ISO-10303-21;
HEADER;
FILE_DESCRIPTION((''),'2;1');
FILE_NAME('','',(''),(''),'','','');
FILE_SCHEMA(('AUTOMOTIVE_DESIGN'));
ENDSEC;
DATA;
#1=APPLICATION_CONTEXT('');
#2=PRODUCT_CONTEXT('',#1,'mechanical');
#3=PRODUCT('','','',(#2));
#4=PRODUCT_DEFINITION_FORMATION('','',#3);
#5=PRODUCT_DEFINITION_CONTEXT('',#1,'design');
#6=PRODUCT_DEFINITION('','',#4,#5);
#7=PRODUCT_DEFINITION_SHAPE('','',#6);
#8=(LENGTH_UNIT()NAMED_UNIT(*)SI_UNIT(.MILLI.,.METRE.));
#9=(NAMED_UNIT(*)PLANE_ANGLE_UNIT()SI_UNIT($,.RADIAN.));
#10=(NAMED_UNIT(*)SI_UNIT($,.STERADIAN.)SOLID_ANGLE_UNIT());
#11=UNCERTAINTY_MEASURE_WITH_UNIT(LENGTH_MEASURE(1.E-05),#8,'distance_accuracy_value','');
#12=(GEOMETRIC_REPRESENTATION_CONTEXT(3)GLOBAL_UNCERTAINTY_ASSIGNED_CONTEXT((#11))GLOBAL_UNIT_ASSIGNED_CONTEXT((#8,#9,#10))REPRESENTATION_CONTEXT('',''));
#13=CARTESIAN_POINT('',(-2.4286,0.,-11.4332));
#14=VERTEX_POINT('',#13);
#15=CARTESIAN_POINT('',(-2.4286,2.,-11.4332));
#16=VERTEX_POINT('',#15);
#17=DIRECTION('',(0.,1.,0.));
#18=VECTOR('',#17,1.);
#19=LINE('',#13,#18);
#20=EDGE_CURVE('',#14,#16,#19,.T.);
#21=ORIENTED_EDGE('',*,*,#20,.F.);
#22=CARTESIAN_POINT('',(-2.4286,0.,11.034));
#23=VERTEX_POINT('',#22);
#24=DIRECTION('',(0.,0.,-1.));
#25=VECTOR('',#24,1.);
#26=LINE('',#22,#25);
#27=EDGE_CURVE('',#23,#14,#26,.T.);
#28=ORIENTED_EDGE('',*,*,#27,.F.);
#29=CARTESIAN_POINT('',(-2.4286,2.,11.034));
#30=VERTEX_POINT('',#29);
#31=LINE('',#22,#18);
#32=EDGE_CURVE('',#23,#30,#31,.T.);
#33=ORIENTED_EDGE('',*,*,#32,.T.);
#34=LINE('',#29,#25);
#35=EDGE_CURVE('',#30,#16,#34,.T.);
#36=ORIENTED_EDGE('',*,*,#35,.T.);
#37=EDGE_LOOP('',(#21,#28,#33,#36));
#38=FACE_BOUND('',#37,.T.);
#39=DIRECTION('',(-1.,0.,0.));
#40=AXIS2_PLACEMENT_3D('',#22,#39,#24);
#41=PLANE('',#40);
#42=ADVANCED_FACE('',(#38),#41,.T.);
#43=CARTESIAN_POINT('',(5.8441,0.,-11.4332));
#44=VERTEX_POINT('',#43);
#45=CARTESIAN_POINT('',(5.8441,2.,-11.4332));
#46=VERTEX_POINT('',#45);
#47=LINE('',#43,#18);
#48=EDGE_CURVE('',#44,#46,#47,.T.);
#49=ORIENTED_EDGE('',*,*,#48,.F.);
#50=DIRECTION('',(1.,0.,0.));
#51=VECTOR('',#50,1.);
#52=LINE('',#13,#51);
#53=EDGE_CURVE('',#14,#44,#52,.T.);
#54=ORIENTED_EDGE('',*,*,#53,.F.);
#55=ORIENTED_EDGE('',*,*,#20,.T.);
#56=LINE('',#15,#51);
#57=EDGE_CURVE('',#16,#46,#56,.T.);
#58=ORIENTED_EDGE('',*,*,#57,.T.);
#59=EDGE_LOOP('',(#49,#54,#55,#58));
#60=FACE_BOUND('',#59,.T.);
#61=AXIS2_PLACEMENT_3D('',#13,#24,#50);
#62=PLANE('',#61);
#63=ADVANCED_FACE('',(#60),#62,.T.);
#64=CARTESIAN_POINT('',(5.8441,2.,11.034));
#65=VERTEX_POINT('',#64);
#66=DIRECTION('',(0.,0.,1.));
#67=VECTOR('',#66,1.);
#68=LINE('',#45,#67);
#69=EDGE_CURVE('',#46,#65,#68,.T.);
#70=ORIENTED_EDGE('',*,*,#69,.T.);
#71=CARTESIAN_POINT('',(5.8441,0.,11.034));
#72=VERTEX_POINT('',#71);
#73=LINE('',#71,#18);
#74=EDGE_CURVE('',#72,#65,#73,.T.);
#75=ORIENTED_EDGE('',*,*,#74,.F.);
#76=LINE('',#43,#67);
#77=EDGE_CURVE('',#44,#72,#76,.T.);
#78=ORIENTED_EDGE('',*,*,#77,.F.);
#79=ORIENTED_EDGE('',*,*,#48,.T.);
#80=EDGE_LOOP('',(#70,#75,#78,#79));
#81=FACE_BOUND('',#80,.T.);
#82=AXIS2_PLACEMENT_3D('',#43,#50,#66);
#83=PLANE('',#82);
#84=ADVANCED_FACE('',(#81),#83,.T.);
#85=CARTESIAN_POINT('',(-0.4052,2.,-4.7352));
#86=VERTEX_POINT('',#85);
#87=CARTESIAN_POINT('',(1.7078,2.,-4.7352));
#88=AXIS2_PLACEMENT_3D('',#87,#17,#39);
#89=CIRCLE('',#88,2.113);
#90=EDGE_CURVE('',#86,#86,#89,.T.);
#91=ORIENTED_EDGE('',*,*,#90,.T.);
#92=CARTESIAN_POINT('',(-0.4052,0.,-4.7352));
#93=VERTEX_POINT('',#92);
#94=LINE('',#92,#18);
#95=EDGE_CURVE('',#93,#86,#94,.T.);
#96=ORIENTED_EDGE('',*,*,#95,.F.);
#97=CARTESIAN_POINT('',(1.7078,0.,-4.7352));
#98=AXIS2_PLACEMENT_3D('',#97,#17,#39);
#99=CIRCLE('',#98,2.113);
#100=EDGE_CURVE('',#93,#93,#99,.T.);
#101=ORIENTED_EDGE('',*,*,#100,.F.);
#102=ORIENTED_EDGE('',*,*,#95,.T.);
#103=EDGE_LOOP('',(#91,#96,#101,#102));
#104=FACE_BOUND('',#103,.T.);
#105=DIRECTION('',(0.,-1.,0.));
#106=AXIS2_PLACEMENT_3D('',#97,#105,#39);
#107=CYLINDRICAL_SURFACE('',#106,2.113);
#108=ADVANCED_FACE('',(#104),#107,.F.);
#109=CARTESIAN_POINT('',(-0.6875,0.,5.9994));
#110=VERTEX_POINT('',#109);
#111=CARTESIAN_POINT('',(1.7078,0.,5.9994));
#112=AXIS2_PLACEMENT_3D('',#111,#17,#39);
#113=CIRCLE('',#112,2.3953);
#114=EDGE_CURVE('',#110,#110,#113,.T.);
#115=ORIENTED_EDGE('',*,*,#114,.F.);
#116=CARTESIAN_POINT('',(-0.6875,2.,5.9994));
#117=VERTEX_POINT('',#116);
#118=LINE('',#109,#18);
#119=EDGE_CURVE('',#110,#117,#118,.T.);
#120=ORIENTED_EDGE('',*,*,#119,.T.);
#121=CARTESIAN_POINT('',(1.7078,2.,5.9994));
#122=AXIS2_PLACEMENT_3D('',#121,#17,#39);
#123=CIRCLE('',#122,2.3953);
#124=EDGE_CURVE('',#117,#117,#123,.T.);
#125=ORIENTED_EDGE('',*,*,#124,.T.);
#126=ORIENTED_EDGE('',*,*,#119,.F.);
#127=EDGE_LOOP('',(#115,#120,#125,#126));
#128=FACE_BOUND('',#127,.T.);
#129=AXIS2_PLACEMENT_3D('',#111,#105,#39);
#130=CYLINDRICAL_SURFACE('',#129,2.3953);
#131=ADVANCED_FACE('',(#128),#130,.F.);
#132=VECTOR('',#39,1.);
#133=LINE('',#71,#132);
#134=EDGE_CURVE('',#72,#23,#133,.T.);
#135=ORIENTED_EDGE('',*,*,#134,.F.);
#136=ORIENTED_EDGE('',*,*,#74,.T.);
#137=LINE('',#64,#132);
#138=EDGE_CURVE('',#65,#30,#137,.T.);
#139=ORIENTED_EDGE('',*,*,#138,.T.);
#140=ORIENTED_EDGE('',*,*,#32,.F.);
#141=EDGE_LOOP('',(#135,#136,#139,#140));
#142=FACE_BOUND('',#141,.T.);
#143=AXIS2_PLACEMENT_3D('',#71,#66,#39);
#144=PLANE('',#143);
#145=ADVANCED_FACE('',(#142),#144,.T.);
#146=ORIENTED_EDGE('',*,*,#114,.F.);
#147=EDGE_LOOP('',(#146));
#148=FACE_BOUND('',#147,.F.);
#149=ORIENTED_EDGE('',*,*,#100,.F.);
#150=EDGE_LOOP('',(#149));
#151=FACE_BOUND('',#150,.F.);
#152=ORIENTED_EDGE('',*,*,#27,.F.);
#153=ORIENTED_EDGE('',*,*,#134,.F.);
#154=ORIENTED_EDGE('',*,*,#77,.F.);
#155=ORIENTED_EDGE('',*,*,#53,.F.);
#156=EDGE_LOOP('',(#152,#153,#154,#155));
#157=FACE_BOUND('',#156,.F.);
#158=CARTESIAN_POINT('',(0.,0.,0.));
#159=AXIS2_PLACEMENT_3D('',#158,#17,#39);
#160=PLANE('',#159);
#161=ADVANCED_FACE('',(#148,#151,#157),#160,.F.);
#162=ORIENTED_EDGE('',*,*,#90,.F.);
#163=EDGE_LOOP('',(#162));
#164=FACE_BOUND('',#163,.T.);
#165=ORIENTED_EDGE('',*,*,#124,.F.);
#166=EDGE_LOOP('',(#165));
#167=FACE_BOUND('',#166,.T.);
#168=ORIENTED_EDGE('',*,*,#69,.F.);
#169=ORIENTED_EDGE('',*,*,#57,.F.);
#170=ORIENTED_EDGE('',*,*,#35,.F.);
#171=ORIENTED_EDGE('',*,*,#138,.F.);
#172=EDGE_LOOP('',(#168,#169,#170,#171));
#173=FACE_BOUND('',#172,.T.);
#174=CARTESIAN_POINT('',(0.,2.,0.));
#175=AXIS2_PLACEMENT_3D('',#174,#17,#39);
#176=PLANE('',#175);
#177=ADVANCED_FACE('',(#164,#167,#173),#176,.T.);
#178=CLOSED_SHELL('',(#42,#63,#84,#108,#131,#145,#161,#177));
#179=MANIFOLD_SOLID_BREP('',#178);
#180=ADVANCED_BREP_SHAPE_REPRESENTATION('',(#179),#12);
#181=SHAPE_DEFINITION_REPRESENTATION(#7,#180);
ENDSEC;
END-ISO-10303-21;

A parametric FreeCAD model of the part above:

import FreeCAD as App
import Part
import Sketcher
Q = App.Units.Quantity

doc = App.newDocument("Part")
body = doc.addObject("PartDesign::Body", "Body")

# Sketch on XZ plane
sketch1 = body.newObject("Sketcher::SketchObject", "Sketch")
sketch1.AttachmentSupport = (doc.getObject("XZ_Plane"), [""])
sketch1.MapMode = "FlatFace"
sketch1.addGeometry([
    Part.LineSegment(App.Vector(-2.4, 11, 0), App.Vector(5.8, 11, 0)),  # 0
    Part.LineSegment(App.Vector(5.8, 11, 0), App.Vector(5.8, -11.4, 0)),  # 1
    Part.LineSegment(App.Vector(5.8, -11.4, 0), App.Vector(-2.4, -11.4, 0)),  # 2
    Part.LineSegment(App.Vector(-2.4, -11.4, 0), App.Vector(-2.4, 11, 0)),  # 3
    Part.Circle(App.Vector(1.7, -4.7, 0), App.Vector(0, 0, 1), 2.1),  # 4
    Part.Circle(App.Vector(1.7, 6, 0), App.Vector(0, 0, 1), 2.4),  # 5
], False)
sketch1.addConstraint([
    Sketcher.Constraint("Coincident", 0, 2, 1, 1),
    Sketcher.Constraint("Coincident", 1, 2, 2, 1),
    Sketcher.Constraint("Coincident", 2, 2, 3, 1),
    Sketcher.Constraint("Coincident", 3, 2, 0, 1),
    Sketcher.Constraint("Horizontal", 0),
    Sketcher.Constraint("Vertical", 1),
    Sketcher.Constraint("Horizontal", 2),
    Sketcher.Constraint("Vertical", 3),
    Sketcher.Constraint("Vertical", 4, 3, 5, 3),
    Sketcher.Constraint("Diameter", 4, Q("4.226 mm")),
    Sketcher.Constraint("Diameter", 5, Q("4.7906 mm")),
    Sketcher.Constraint("DistanceX", 0, 1, 0, 2, Q("8.2727 mm")),
    Sketcher.Constraint("DistanceY", 1, 2, 1, 1, Q("22.4672 mm")),
    Sketcher.Constraint("DistanceX", -1, 1, 0, 2, Q("5.844 mm")),
    Sketcher.Constraint("DistanceY", -1, 1, 0, 2, Q("11.034 mm")),
    Sketcher.Constraint("DistanceY", 1, 2, 4, 3, Q("6.698 mm")),
    Sketcher.Constraint("DistanceX", -1, 1, 4, 3, Q("1.7078 mm")),
    Sketcher.Constraint("DistanceY", -1, 1, 5, 3, Q("5.9994 mm")),
])
pad1 = body.newObject("PartDesign::Pad", "Pad")
pad1.Profile = sketch1
pad1.Length = 2
pad1.Reversed = True

doc.recompute()
